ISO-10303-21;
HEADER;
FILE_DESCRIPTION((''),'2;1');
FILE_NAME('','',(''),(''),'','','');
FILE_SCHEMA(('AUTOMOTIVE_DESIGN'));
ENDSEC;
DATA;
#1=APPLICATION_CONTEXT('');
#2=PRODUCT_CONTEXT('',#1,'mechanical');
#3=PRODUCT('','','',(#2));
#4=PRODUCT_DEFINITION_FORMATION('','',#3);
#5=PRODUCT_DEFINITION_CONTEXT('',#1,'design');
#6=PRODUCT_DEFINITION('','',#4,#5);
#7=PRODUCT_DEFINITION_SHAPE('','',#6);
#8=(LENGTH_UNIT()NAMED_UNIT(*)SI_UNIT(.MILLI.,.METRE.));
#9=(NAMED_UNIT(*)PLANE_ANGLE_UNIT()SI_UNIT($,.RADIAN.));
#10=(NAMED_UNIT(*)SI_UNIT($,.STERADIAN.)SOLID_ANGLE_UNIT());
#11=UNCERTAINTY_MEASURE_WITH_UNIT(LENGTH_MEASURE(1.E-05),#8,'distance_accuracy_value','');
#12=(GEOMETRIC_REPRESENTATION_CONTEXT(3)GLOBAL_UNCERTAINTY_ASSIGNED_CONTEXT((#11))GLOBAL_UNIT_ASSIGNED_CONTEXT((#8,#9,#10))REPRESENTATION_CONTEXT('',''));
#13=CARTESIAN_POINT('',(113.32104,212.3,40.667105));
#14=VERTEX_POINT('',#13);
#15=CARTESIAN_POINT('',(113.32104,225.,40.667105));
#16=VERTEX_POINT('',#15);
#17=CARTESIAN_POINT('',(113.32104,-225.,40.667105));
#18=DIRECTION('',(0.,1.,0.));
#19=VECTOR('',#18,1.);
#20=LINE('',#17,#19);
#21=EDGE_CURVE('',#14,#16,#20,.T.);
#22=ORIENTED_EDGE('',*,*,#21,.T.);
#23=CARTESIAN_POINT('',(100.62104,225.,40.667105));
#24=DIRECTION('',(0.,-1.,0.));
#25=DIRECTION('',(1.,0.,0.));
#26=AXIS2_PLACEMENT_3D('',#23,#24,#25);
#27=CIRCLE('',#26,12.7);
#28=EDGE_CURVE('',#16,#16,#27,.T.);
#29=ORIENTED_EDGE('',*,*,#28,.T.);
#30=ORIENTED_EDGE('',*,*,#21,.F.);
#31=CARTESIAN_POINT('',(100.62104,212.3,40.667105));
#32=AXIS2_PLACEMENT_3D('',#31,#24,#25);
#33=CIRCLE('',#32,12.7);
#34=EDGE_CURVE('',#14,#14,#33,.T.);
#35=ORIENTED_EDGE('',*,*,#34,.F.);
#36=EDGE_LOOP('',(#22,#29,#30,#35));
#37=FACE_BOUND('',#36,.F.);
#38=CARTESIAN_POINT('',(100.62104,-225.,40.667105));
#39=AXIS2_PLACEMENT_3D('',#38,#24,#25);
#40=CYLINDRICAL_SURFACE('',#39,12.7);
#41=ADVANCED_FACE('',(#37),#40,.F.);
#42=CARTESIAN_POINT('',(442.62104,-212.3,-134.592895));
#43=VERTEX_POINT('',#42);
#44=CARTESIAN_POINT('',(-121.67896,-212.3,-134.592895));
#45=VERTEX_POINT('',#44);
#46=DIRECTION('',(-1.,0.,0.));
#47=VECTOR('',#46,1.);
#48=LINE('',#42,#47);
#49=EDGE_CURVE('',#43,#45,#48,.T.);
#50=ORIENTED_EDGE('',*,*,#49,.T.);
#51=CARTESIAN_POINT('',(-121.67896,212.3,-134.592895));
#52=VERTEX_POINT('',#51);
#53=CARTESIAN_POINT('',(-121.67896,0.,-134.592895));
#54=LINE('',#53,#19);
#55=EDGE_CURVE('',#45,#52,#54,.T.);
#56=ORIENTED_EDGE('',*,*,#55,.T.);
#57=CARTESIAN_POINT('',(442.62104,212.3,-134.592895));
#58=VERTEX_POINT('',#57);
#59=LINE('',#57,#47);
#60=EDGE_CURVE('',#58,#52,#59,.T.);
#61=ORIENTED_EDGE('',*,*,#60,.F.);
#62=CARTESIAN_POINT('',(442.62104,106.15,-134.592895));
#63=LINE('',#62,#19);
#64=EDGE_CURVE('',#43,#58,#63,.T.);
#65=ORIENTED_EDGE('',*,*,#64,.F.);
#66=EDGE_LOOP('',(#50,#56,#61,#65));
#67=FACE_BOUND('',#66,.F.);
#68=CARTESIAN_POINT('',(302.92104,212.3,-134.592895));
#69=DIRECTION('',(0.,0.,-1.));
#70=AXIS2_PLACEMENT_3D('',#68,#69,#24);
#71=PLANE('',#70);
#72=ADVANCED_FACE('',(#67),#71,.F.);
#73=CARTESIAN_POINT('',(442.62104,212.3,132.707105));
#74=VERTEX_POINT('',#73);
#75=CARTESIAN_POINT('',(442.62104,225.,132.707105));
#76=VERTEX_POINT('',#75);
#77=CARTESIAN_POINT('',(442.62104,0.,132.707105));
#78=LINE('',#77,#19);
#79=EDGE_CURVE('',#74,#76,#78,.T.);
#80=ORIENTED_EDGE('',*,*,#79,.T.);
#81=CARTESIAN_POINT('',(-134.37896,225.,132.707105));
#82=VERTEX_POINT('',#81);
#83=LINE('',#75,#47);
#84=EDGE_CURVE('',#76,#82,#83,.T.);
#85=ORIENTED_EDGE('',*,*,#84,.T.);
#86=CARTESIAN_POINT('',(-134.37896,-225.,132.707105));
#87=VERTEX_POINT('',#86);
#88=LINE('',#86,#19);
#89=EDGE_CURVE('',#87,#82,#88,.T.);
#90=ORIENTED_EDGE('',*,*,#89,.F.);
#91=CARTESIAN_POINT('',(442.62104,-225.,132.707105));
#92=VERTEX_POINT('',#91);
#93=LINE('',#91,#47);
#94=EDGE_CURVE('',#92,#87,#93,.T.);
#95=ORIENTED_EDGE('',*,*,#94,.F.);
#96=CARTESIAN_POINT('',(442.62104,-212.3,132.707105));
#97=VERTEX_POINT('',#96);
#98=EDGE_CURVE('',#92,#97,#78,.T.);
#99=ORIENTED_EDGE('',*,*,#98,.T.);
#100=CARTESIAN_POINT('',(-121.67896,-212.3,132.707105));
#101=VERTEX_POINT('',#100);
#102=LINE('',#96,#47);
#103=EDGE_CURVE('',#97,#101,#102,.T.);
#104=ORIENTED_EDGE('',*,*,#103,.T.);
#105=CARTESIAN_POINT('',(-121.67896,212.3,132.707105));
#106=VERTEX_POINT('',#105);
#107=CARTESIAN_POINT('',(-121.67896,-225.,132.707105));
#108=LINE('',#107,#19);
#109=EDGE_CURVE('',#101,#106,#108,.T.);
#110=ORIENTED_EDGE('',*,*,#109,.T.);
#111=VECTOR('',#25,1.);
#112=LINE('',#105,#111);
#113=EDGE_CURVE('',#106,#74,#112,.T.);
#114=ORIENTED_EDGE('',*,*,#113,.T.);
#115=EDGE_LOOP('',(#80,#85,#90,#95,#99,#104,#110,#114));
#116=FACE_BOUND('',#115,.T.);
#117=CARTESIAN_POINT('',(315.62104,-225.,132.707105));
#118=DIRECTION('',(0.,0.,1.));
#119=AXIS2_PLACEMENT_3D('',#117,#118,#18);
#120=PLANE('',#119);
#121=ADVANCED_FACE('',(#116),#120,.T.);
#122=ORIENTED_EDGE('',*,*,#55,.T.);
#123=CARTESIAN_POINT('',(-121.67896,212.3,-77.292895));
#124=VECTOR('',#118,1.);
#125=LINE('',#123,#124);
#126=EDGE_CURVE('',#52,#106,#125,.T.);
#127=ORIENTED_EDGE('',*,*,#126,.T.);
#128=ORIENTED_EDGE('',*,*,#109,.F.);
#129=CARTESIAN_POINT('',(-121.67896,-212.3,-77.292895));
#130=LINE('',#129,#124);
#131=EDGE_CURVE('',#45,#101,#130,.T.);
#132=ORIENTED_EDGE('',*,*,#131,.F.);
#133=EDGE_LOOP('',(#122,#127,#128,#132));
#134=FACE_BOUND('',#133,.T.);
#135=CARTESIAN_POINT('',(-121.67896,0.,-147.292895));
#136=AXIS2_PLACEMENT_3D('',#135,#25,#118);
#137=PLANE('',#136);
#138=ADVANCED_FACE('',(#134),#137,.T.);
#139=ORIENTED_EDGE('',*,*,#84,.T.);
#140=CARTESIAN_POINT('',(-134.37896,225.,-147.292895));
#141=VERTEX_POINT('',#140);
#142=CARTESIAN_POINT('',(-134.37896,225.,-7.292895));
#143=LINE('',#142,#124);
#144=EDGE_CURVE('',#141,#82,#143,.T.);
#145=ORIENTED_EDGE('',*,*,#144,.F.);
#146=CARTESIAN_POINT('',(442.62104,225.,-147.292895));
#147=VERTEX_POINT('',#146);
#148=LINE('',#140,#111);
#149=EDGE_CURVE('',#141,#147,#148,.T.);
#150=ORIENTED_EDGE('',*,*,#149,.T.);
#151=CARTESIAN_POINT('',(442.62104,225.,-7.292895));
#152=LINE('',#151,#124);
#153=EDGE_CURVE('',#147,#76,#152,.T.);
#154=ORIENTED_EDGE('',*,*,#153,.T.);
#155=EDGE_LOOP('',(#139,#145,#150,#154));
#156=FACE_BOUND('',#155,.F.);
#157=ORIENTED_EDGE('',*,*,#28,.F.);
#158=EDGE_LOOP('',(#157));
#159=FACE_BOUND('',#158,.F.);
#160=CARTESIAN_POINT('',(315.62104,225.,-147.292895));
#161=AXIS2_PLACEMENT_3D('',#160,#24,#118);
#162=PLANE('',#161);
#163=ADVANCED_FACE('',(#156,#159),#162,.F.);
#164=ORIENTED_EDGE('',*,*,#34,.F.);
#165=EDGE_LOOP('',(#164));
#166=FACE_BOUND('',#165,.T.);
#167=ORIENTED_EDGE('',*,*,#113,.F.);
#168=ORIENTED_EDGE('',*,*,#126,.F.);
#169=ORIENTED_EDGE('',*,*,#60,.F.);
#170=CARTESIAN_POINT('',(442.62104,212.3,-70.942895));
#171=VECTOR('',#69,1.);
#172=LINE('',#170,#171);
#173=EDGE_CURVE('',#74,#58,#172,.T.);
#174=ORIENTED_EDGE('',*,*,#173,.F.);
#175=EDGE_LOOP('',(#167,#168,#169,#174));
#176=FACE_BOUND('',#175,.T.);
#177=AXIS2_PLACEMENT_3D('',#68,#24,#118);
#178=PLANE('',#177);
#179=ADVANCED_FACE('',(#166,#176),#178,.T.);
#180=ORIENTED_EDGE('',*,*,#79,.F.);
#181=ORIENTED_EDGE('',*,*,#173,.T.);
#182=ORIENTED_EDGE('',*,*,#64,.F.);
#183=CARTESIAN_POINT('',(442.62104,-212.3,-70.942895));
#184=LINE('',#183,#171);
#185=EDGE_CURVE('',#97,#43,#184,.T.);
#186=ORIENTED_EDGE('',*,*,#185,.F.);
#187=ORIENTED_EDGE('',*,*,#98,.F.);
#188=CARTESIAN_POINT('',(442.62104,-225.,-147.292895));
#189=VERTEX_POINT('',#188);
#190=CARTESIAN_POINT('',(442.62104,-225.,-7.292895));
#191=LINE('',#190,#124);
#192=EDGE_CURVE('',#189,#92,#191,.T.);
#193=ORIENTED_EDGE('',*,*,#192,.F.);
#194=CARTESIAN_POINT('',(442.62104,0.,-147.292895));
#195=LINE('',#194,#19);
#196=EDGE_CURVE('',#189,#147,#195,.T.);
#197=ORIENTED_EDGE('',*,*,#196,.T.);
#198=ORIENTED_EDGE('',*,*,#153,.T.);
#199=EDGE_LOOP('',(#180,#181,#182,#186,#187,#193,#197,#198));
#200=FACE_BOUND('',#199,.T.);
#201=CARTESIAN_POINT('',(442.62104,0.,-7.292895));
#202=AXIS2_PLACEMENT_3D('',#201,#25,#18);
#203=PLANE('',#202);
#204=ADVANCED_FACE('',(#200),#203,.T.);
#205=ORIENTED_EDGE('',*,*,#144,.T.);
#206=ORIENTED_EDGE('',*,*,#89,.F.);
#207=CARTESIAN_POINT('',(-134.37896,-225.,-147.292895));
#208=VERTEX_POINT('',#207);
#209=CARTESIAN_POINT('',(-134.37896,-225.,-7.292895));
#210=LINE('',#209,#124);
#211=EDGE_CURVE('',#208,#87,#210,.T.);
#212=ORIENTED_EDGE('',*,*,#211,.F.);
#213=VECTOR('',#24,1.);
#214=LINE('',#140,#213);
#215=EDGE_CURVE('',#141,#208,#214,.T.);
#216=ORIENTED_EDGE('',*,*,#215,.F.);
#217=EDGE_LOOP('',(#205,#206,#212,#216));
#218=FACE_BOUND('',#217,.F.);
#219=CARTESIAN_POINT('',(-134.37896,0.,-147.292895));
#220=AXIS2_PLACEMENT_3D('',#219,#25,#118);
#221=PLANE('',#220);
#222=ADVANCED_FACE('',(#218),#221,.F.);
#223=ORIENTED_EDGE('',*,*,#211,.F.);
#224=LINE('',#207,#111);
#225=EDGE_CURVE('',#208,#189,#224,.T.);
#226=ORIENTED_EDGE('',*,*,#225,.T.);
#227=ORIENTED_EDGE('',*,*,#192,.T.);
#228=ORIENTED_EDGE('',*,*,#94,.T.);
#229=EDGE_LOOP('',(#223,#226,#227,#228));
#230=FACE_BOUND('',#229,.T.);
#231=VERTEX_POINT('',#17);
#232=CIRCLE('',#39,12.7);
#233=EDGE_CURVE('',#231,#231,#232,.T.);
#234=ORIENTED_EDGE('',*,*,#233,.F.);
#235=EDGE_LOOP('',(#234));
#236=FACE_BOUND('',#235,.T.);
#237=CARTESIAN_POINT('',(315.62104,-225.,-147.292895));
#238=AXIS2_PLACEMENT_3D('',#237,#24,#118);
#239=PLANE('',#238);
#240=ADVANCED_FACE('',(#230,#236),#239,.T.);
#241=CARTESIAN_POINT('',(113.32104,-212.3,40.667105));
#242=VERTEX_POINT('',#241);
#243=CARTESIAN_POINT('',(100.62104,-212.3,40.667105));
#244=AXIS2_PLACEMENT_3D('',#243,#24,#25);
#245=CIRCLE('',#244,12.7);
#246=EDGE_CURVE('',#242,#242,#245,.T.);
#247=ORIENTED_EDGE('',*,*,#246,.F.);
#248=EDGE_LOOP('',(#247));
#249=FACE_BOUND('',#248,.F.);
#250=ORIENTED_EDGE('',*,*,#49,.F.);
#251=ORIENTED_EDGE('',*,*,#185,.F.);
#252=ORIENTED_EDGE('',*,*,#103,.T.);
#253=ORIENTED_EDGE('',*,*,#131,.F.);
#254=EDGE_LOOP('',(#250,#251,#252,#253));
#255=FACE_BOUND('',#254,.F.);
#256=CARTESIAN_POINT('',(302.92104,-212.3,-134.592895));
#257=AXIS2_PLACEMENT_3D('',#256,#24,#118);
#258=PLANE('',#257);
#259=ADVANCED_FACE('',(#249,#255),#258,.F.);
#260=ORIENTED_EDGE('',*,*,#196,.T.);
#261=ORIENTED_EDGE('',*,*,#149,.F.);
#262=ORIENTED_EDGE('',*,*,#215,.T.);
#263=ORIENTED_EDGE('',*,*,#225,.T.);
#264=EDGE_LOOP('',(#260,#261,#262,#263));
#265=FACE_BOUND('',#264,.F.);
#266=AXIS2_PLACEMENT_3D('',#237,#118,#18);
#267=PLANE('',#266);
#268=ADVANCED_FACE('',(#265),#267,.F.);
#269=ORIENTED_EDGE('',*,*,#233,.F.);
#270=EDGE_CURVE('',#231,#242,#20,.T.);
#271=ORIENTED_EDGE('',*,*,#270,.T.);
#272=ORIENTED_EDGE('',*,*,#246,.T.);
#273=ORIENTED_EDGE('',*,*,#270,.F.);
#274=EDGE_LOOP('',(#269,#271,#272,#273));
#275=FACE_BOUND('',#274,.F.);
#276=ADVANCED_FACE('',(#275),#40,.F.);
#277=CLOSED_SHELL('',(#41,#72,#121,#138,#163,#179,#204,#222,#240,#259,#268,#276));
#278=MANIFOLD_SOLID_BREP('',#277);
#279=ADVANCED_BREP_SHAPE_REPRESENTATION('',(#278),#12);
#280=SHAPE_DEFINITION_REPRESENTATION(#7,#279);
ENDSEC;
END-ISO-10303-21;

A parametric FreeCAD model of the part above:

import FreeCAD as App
import Part
import Sketcher

V = App.Vector
Q = App.Units.Quantity


def faces_at(feature, points):
    """Names of the faces that lie closest to the given points."""
    faces = feature.Shape.Faces
    near = lambda p: min(range(len(faces)), key=lambda i: faces[i].distToShape(Part.Vertex(*p))[0])
    return sorted({f"Face{near(p) + 1}" for p in points})


def add_polygon(sketch, points):
    """Adds a closed chain of lines whose ends are joined by coincident constraints."""
    first, n = sketch.GeometryCount, len(points)
    for a, b in zip(points, points[1:] + points[:1]):
        sketch.addGeometry(Part.LineSegment(App.Vector(*a, 0), App.Vector(*b, 0)), False)
    for i in range(n):
        sketch.addConstraint(Sketcher.Constraint("Coincident", first + i, 2, first + (i + 1) % n, 1))

doc = App.newDocument("Part")
body = doc.addObject("PartDesign::Body", "Body")

# Sketch on XZ plane
sketch1 = body.newObject("Sketcher::SketchObject", "Sketch")
sketch1.AttachmentSupport = (doc.getObject("XZ_Plane"), [""])
sketch1.MapMode = "FlatFace"
add_polygon(sketch1, [(-134.37896, 132.707105), (-134.37896, -147.292895), (315.62104, -147.292895), (315.62104, 132.707105)])  # lines 0-3
sketch1.addConstraint([
    Sketcher.Constraint("Vertical", 0),
    Sketcher.Constraint("Horizontal", 1),
    Sketcher.Constraint("Vertical", 2),
    Sketcher.Constraint("Horizontal", 3),
    Sketcher.Constraint("DistanceX", 1, 1, 1, 2, Q("450 mm")),
    Sketcher.Constraint("DistanceY", 0, 2, 0, 1, Q("280 mm")),
    Sketcher.Constraint("DistanceX", 0, 2, -1, 1, Q("134.37896 mm")),
    Sketcher.Constraint("DistanceY", 0, 2, -1, 1, Q("147.292895 mm")),
])
pad1 = body.newObject("PartDesign::Pad", "Pad")
pad1.Profile = sketch1
pad1.Length = 450
pad1.Midplane = True
doc.recompute()

thickness = body.newObject("PartDesign::Thickness", "Thickness")
thickness.Base = (pad1, faces_at(pad1, [(90.621, 0, 132.707)]))
thickness.Value = 12.7
thickness.Reversed = True
thickness.Join = "Arc"

# Sketch on XZ plane
sketch2 = body.newObject("Sketcher::SketchObject", "Sketch001")
sketch2.AttachmentSupport = (doc.getObject("XZ_Plane"), [""])
sketch2.MapMode = "FlatFace"
sketch2.AttachmentOffset = App.Placement(V(0, 0, 225), App.Rotation())
sketch2.addGeometry(Part.Circle(V(100.62104, 40.667105, 0), V(0, 0, 1), 12.7), False)
sketch2.addConstraint([
    Sketcher.Constraint("Diameter", 0, Q("25.4 mm")),
    Sketcher.Constraint("DistanceX", -1, 1, 0, 3, Q("100.62104 mm")),
    Sketcher.Constraint("DistanceY", -1, 1, 0, 3, Q("40.667105 mm")),
])
pocket1 = body.newObject("PartDesign::Pocket", "Pocket")
pocket1.Profile = sketch2
pocket1.Type = "ThroughAll"

# Sketch on YZ plane
sketch3 = body.newObject("Sketcher::SketchObject", "Sketch002")
sketch3.AttachmentSupport = (doc.getObject("YZ_Plane"), [""])
sketch3.MapMode = "FlatFace"
sketch3.AttachmentOffset = App.Placement(V(0, 0, 315.62104), App.Rotation())
add_polygon(sketch3, [(-225, 132.707105), (-225, -147.292895), (225, -147.292895), (225, 132.707105)])  # lines 0-3
sketch3.addConstraint([
    Sketcher.Constraint("Vertical", 0),
    Sketcher.Constraint("Horizontal", 1),
    Sketcher.Constraint("Vertical", 2),
    Sketcher.Constraint("Horizontal", 3),
    Sketcher.Constraint("DistanceX", 1, 1, 1, 2, Q("450 mm")),
    Sketcher.Constraint("DistanceY", 0, 2, 0, 1, Q("280 mm")),
    Sketcher.Constraint("DistanceX", 0, 2, -1, 1, Q("225 mm")),
    Sketcher.Constraint("DistanceY", 0, 2, -1, 1, Q("147.292895 mm")),
])
pad2 = body.newObject("PartDesign::Pad", "Pad001")
pad2.Profile = sketch3
pad2.Length = 127

# Sketch on YZ plane
sketch4 = body.newObject("Sketcher::SketchObject", "Sketch003")
sketch4.AttachmentSupport = (doc.getObject("YZ_Plane"), [""])
sketch4.MapMode = "FlatFace"
sketch4.AttachmentOffset = App.Placement(V(0, 0, 302.92104), App.Rotation())
add_polygon(sketch4, [(212.3, 132.707105), (212.3, -134.592895), (-212.3, -134.592895), (-212.3, 132.707105)])  # lines 0-3
sketch4.addConstraint([
    Sketcher.Constraint("Vertical", 0),
    Sketcher.Constraint("Horizontal", 1),
    Sketcher.Constraint("Vertical", 2),
    Sketcher.Constraint("Horizontal", 3),
    Sketcher.Constraint("DistanceX", 1, 2, 1, 1, Q("424.6 mm")),
    Sketcher.Constraint("DistanceY", 0, 2, 0, 1, Q("267.3 mm")),
    Sketcher.Constraint("DistanceX", -1, 1, 0, 2, Q("212.3 mm")),
    Sketcher.Constraint("DistanceY", 0, 2, -1, 1, Q("134.592895 mm")),
])
pocket2 = body.newObject("PartDesign::Pocket", "Pocket001")
pocket2.Profile = sketch4
pocket2.Type = "ThroughAll"
pocket2.Reversed = True

doc.recompute()
